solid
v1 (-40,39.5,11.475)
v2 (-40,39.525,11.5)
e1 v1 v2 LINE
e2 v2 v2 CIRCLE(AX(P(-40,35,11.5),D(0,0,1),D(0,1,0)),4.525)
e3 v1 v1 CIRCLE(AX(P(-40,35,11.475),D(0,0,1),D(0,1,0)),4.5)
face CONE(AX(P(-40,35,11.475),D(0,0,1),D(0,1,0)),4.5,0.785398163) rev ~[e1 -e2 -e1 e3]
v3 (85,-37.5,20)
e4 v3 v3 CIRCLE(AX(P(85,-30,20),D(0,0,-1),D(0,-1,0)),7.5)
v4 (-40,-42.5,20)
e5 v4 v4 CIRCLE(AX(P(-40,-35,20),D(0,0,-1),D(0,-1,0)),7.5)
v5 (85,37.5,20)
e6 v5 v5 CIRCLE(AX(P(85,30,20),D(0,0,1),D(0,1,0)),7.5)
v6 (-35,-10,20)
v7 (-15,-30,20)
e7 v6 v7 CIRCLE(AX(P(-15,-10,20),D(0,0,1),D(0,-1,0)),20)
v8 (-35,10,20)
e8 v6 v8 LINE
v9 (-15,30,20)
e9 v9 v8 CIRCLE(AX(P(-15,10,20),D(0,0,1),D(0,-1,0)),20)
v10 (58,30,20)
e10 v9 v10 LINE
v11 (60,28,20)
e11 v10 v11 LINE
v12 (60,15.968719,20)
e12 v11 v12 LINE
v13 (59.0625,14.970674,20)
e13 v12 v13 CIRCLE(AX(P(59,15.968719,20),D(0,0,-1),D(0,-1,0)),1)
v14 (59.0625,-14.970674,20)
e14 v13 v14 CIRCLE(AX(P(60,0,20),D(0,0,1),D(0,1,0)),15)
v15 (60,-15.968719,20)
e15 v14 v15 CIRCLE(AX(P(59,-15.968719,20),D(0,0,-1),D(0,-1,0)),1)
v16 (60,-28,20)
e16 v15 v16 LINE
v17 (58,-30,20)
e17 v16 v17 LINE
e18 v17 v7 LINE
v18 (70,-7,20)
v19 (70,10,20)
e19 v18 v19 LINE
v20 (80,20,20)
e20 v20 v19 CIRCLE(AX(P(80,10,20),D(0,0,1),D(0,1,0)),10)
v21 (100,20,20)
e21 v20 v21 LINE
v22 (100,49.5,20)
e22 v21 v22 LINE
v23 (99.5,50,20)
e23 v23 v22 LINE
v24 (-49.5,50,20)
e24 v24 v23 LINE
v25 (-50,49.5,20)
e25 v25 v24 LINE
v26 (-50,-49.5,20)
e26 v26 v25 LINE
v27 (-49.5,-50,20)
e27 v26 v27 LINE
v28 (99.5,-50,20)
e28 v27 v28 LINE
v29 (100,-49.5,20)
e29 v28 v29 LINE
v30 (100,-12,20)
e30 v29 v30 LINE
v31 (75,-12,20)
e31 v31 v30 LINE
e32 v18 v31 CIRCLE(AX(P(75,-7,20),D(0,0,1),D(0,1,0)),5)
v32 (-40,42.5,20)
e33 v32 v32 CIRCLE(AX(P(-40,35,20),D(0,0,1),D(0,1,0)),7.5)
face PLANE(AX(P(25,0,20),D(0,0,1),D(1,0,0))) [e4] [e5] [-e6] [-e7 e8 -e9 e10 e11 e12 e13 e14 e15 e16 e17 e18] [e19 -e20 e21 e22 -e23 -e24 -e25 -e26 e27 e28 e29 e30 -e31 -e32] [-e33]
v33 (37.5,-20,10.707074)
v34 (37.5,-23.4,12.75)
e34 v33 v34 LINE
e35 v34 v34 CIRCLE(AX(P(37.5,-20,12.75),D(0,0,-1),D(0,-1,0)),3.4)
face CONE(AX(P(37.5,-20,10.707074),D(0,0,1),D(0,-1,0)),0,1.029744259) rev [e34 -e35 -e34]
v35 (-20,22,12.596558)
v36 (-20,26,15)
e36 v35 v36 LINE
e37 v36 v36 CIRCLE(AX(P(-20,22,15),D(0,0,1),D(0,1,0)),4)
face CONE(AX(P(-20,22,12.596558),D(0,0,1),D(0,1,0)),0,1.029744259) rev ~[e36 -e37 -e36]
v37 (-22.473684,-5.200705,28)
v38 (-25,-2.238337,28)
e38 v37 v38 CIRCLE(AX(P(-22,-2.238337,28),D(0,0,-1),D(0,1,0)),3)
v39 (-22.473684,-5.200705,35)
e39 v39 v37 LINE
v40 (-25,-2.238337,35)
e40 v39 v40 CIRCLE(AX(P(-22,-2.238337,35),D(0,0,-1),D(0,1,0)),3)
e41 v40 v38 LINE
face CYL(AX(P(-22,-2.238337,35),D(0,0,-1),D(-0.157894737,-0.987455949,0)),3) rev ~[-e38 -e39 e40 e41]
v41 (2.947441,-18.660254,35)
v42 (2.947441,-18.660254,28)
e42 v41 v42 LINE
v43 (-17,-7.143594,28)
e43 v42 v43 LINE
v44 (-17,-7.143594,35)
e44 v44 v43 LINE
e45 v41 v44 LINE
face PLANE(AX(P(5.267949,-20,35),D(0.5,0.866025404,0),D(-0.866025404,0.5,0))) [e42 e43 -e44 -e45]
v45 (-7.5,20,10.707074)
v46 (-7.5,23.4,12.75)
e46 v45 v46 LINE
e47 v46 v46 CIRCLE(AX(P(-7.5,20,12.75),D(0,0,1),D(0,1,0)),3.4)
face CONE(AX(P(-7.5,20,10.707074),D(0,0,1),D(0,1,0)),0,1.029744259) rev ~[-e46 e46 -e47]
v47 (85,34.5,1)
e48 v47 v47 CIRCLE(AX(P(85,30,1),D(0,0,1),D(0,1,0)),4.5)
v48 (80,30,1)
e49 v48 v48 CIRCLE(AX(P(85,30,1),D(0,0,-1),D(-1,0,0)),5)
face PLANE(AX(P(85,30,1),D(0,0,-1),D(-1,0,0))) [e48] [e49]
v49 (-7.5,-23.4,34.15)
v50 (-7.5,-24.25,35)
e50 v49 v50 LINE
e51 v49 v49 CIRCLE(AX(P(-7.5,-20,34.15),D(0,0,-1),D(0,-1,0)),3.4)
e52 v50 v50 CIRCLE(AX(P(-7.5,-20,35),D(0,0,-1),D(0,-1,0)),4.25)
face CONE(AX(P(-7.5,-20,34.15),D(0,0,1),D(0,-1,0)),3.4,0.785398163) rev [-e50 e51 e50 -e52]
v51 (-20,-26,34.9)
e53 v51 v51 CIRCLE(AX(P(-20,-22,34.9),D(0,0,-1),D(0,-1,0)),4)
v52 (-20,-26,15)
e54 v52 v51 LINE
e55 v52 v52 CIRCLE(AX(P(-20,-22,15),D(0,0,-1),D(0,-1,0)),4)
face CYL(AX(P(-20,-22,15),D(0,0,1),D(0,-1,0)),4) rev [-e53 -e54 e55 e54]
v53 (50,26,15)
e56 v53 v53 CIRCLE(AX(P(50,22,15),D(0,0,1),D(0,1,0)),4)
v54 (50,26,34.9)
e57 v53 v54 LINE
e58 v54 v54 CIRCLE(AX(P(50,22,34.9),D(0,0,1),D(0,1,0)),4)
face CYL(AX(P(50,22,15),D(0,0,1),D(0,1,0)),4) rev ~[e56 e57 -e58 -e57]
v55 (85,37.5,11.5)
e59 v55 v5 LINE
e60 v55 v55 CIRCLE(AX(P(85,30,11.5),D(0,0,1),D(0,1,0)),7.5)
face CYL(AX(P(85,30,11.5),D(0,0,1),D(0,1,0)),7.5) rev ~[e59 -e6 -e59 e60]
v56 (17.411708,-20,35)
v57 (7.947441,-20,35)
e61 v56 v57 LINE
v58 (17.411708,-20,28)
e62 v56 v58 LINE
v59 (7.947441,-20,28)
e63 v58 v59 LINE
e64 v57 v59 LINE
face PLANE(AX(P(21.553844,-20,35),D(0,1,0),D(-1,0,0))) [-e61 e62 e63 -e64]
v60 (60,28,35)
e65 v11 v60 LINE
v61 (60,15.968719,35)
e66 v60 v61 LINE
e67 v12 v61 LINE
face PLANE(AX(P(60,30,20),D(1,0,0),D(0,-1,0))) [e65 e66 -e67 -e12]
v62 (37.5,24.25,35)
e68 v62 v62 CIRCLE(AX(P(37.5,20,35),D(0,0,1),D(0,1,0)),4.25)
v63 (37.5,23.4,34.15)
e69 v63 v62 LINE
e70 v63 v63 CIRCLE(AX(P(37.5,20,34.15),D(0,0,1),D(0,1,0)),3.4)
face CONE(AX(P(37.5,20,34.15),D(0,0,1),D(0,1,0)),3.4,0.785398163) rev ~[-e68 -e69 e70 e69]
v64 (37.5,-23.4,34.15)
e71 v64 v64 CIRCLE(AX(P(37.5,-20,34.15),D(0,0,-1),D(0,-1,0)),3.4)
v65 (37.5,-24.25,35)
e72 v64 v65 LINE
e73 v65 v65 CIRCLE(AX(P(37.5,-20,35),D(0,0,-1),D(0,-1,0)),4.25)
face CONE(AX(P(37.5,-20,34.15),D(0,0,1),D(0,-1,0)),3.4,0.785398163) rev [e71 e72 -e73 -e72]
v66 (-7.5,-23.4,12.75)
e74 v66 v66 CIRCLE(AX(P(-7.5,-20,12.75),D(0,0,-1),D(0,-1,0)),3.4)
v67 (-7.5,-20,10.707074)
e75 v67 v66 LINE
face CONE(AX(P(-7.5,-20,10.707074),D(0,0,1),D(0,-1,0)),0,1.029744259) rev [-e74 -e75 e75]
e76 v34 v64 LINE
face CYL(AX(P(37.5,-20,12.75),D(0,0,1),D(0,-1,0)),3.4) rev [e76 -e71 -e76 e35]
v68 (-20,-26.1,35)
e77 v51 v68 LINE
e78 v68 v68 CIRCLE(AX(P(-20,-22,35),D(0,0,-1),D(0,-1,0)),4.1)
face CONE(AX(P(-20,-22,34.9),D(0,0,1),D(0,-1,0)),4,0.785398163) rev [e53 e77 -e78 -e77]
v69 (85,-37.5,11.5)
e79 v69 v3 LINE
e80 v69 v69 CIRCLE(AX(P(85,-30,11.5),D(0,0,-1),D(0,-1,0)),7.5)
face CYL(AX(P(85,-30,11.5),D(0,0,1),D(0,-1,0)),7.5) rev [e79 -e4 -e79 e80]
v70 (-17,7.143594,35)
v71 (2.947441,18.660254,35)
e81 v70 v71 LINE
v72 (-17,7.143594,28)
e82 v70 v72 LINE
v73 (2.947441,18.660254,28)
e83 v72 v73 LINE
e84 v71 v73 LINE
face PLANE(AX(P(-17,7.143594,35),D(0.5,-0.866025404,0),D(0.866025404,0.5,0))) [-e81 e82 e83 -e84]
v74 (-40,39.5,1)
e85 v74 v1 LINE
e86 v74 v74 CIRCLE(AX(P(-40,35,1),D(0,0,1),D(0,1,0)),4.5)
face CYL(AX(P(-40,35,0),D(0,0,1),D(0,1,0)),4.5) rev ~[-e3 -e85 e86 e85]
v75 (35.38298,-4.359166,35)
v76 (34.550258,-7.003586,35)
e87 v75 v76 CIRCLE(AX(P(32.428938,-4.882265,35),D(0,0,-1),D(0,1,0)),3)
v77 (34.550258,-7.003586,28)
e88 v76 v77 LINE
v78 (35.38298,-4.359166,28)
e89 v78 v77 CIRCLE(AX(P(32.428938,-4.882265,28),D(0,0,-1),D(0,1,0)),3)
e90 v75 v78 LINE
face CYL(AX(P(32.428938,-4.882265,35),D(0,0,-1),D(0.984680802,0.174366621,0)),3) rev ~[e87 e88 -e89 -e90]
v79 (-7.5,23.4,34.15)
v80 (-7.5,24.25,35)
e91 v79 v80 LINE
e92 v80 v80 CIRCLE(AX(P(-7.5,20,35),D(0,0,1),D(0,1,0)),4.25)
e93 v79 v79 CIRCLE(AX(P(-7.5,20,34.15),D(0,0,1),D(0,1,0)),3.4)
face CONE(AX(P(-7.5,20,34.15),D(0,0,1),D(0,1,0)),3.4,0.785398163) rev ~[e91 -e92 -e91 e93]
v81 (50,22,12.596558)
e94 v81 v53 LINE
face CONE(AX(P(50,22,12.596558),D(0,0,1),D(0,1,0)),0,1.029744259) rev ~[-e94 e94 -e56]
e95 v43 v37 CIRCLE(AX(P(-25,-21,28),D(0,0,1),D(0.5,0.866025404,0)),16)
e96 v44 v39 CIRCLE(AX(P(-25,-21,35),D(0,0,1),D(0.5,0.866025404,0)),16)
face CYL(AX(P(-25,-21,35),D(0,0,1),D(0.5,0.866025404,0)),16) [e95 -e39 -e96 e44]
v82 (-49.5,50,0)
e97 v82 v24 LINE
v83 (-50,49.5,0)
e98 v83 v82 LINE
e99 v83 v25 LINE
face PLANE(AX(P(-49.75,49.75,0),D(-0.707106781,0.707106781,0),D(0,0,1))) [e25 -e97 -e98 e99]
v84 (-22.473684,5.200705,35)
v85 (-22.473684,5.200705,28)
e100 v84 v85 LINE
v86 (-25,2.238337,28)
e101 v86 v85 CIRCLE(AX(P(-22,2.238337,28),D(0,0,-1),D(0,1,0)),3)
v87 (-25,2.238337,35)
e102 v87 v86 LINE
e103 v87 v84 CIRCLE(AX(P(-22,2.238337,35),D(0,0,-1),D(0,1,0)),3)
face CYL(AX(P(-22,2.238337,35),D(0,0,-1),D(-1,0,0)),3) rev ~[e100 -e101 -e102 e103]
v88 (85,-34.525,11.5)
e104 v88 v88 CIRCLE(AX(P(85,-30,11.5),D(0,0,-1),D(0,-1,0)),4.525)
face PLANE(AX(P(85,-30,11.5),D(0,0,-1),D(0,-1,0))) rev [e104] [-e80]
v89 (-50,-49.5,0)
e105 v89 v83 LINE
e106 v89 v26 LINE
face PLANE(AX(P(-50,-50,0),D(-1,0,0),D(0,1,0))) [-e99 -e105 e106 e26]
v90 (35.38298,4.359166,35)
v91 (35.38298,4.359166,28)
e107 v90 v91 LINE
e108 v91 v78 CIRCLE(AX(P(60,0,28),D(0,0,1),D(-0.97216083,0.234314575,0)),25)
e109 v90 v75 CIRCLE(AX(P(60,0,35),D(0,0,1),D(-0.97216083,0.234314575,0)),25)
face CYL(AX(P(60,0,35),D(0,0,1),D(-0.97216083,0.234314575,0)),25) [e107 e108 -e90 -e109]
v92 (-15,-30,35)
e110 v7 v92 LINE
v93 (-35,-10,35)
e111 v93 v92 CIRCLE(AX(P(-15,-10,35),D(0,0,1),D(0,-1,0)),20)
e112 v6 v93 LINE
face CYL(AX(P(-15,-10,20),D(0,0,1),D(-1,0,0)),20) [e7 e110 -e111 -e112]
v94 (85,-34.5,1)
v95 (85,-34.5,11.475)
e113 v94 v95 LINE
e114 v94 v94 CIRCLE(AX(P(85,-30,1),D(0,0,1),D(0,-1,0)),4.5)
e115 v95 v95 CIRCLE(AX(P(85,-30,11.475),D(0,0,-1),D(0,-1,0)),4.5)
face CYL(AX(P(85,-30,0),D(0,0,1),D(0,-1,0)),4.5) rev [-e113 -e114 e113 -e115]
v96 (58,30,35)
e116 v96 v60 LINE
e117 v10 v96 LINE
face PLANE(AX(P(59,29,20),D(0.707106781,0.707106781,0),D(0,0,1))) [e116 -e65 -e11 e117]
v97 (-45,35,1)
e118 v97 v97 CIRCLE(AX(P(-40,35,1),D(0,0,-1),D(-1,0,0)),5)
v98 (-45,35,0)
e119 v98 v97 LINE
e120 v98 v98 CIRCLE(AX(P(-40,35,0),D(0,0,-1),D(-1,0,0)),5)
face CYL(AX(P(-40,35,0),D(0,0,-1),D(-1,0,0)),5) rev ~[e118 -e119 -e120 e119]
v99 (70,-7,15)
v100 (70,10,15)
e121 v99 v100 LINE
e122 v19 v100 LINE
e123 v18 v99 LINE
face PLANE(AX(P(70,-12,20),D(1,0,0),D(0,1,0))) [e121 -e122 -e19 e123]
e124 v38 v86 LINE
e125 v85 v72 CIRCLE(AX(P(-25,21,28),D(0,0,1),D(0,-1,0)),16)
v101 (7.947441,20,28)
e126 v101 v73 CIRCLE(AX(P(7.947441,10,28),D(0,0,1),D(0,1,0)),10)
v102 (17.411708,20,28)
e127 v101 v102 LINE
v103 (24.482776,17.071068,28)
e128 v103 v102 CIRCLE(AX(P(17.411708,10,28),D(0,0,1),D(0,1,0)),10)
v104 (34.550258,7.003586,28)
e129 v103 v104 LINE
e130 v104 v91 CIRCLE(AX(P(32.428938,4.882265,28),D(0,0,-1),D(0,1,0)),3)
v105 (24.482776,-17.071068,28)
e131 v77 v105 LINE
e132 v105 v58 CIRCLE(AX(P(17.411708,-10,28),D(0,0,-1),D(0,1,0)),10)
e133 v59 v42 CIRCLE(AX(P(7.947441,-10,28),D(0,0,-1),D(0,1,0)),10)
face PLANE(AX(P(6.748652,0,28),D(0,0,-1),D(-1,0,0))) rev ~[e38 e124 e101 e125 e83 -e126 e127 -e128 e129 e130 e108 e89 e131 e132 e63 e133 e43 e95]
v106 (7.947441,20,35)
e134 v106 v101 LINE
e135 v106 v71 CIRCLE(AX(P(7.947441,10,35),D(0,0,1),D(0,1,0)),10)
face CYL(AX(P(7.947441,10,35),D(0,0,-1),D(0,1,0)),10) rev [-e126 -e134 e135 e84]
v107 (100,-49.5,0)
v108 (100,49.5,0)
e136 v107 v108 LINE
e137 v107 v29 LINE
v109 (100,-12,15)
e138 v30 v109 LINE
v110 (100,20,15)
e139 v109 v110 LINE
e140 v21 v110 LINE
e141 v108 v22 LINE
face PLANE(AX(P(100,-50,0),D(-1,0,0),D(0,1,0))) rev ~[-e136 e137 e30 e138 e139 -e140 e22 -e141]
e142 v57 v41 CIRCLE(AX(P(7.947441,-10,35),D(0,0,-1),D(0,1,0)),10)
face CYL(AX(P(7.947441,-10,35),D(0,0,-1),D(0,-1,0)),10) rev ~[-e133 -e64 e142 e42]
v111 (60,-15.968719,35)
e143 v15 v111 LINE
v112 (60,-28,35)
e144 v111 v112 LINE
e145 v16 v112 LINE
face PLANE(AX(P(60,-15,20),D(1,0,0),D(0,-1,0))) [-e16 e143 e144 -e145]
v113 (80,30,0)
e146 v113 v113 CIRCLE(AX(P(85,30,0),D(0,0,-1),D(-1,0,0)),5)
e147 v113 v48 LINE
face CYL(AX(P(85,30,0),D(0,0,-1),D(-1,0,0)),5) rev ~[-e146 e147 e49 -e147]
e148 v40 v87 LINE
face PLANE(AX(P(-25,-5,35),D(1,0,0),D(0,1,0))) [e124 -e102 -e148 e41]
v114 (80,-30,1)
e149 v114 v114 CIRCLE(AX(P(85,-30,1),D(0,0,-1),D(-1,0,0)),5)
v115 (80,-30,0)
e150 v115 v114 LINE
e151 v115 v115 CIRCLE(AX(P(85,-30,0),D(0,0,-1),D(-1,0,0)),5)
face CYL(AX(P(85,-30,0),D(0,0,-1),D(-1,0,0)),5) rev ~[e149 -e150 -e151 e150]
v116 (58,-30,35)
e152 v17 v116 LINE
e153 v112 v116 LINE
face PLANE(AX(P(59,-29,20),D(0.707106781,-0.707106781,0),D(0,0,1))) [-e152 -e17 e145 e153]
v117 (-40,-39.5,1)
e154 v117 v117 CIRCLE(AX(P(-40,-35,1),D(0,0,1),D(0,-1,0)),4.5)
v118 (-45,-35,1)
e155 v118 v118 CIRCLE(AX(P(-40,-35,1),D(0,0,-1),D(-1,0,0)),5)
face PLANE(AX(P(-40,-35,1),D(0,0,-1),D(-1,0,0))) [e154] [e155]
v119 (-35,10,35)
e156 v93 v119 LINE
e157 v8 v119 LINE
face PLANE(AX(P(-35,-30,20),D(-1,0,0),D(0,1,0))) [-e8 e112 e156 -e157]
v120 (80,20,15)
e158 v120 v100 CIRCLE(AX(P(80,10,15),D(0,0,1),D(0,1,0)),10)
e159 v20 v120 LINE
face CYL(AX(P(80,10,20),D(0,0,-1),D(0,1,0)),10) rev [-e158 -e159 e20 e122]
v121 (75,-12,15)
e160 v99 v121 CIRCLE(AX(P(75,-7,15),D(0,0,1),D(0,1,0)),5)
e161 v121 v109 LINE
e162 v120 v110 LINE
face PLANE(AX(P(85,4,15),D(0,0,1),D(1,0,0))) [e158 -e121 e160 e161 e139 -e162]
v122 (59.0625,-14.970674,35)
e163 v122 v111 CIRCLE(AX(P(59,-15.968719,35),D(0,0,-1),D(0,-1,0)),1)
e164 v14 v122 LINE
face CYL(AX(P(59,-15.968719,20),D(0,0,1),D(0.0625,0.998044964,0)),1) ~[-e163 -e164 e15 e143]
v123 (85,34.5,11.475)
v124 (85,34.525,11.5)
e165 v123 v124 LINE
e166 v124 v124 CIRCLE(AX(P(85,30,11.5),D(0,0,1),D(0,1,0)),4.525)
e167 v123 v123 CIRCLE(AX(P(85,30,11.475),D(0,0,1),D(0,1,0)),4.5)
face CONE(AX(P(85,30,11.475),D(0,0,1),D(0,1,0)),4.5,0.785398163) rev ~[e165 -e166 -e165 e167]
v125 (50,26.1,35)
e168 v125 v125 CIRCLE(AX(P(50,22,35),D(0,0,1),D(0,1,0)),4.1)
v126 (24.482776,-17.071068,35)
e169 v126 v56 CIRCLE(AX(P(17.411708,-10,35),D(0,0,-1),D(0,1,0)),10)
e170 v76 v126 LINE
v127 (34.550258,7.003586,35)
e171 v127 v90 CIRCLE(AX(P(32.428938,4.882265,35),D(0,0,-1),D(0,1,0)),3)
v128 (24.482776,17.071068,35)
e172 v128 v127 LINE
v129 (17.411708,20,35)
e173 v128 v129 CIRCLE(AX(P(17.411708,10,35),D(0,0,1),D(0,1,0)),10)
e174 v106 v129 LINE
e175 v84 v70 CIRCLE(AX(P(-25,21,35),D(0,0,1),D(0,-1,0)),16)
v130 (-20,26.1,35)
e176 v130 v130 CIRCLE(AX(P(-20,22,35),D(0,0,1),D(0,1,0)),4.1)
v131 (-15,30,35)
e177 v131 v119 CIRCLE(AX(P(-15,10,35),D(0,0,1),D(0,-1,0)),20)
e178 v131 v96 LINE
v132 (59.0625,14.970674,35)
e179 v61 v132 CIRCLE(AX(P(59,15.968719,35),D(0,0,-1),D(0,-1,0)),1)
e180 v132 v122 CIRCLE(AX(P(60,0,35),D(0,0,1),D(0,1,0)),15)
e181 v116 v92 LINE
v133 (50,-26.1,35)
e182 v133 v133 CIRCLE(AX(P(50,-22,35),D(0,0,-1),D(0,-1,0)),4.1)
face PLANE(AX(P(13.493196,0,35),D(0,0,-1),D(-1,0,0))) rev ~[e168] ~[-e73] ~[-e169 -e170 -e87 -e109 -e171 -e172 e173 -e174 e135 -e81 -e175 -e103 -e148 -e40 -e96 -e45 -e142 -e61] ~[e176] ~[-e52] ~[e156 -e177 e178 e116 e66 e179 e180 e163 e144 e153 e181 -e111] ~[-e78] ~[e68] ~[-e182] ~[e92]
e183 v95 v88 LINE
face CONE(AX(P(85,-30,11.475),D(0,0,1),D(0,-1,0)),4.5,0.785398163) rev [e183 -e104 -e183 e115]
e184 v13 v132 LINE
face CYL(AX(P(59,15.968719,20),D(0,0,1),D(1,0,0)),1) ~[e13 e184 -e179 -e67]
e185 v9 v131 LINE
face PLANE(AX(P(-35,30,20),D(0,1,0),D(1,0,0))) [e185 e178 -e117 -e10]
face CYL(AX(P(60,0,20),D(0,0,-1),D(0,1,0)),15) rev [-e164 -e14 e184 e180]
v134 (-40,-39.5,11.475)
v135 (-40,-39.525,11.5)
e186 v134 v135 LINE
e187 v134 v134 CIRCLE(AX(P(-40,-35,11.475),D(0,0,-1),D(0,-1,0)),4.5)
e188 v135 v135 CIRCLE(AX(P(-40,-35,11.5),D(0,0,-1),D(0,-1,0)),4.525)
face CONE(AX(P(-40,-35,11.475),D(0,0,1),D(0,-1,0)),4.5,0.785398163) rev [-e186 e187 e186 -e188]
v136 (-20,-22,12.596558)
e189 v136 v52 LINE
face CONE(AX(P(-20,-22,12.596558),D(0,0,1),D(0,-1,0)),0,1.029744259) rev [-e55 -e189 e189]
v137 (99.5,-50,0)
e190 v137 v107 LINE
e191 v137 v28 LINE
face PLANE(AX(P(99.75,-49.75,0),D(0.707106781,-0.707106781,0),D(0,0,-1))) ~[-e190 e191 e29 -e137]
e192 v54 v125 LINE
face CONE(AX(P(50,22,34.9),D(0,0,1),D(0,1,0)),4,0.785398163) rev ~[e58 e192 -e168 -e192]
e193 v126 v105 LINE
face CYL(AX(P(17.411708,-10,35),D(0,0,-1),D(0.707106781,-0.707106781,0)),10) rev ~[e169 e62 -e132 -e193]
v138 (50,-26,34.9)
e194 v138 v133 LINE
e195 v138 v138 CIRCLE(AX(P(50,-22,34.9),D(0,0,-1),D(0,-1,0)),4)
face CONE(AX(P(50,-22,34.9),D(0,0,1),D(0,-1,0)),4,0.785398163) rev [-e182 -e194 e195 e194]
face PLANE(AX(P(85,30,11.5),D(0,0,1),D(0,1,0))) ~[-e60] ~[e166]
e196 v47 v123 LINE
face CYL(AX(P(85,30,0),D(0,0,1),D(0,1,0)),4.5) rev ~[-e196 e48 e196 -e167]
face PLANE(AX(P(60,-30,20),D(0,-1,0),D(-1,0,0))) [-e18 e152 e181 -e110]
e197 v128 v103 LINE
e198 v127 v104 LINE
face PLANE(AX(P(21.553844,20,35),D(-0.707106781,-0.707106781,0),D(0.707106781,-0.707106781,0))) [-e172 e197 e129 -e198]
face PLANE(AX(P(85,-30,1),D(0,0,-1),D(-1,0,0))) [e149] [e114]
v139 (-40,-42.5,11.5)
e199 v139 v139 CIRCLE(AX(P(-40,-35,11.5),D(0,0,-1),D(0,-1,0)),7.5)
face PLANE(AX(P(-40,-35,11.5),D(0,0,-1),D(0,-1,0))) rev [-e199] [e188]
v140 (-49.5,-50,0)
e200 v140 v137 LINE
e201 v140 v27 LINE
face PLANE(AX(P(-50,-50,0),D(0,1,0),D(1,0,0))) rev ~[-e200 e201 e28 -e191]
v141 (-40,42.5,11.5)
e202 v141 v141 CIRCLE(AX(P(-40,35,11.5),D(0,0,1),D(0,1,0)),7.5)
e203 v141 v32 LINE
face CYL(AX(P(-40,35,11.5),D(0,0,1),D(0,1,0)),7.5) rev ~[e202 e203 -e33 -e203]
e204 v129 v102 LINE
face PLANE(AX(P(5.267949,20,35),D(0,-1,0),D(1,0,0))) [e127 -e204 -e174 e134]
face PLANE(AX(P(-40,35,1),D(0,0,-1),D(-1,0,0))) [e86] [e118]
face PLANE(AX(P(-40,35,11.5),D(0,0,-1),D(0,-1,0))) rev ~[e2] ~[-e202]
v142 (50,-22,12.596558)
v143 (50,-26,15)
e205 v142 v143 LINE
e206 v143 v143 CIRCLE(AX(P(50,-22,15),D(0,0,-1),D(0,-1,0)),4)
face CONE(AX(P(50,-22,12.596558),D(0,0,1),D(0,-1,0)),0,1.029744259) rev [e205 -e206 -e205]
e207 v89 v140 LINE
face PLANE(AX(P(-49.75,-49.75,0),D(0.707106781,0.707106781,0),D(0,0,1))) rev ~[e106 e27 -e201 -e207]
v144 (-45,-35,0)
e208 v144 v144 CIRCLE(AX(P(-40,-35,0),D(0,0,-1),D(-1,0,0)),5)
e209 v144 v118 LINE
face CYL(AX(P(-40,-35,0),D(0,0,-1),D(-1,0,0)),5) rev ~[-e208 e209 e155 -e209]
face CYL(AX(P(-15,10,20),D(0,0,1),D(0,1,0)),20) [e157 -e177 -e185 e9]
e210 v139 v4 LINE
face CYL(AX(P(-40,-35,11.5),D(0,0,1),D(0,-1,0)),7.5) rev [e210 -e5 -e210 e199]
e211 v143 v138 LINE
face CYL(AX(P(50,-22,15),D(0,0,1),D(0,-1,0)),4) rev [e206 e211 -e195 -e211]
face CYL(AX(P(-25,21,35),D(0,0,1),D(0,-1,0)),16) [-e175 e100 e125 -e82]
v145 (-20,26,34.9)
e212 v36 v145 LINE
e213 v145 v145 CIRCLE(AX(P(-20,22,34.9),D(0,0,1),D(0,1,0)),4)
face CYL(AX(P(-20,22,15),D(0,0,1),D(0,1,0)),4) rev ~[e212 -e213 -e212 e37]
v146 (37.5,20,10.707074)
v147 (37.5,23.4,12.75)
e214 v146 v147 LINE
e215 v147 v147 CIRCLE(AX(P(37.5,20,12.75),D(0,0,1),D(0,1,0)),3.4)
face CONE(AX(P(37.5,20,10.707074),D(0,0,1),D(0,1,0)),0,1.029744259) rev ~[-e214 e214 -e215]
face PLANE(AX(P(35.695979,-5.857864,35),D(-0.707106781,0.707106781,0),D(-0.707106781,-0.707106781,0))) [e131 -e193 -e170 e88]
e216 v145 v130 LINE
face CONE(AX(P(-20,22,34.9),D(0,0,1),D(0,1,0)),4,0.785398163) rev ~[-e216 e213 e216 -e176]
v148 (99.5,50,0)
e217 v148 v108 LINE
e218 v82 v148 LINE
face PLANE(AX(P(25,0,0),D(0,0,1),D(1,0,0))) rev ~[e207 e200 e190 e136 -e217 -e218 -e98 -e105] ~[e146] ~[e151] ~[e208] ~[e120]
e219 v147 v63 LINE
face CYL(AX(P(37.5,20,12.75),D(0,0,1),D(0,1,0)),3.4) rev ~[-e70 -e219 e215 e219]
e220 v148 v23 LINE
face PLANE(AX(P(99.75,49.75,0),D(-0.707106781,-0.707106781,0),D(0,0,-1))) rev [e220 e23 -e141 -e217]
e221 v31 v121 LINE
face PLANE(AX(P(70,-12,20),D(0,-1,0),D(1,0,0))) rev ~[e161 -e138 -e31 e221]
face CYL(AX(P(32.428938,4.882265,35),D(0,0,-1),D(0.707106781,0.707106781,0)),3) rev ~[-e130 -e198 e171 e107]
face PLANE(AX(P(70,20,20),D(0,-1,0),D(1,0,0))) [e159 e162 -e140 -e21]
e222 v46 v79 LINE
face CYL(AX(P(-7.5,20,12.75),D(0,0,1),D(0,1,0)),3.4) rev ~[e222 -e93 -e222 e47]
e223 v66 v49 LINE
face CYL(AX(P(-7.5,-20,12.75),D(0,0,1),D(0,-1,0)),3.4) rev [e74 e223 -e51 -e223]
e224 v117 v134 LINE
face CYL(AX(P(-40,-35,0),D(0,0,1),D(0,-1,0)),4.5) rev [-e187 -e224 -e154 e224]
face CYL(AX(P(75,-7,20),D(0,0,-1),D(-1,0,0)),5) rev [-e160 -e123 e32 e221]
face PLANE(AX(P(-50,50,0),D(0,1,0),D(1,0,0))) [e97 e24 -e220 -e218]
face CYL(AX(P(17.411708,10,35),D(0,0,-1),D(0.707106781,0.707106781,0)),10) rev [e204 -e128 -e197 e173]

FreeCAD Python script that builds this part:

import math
import FreeCAD as App
import Part
import Sketcher
from FreeCAD import Vector
Q = App.Units.Quantity


def edges_at(feature, points):
    """Names of the edges that pass closest to the given points."""
    edges = feature.Shape.Edges
    near = lambda p: min(range(len(edges)), key=lambda i: edges[i].distToShape(Part.Vertex(*p))[0])
    return sorted({f"Edge{near(p) + 1}" for p in points})

doc = App.newDocument("Part")
body = doc.addObject("PartDesign::Body", "Body")

# Sketch on XY plane
sketch1 = body.newObject("Sketcher::SketchObject", "Sketch")
sketch1.AttachmentSupport = (doc.getObject("XY_Plane"), [""])
sketch1.MapMode = "FlatFace"
sketch1.addGeometry([
    Part.LineSegment(Vector(-50, 50, 0), Vector(-50, -50, 0)),
    Part.LineSegment(Vector(-50, -50, 0), Vector(100, -50, 0)),
    Part.LineSegment(Vector(100, -50, 0), Vector(100, 50, 0)),
    Part.LineSegment(Vector(100, 50, 0), Vector(-50, 50, 0)),
], False)
sketch1.addConstraint([
    Sketcher.Constraint("Coincident", 0, 2, 1, 1),
    Sketcher.Constraint("Coincident", 1, 2, 2, 1),
    Sketcher.Constraint("Coincident", 2, 2, 3, 1),
    Sketcher.Constraint("Coincident", 3, 2, 0, 1),
    Sketcher.Constraint("Vertical", 0),
    Sketcher.Constraint("Horizontal", 1),
    Sketcher.Constraint("Vertical", 2),
    Sketcher.Constraint("Horizontal", 3),
    Sketcher.Constraint("DistanceX", 1, 1, 1, 2, 150.0),
    Sketcher.Constraint("DistanceY", 0, 2, 0, 1, 100.0),
    Sketcher.Constraint("DistanceX", 0, 2, -1, 1, 50.0),
    Sketcher.Constraint("DistanceY", 0, 2, -1, 1, 50.0),
])
pad1 = body.newObject("PartDesign::Pad", "Pad")
pad1.Profile = sketch1
pad1.Length = 20

# Sketch on XY plane
sketch2 = body.newObject("Sketcher::SketchObject", "Sketch001")
sketch2.AttachmentSupport = (doc.getObject("XY_Plane"), [""])
sketch2.MapMode = "FlatFace"
sketch2.AttachmentOffset = App.Placement(Vector(0, 0, 20), App.Rotation())
sketch2.addGeometry([
    Part.LineSegment(Vector(60, -30, 0), Vector(60, -15, 0)),  # 0
    Part.ArcOfCircle(Part.Circle(Vector(60, 0, 0), Vector(0, 0, 1), 15), math.radians(90), math.radians(270)),  # 1
    Part.LineSegment(Vector(60, 15, 0), Vector(60, 30, 0)),  # 2
    Part.LineSegment(Vector(60, 30, 0), Vector(-35, 30, 0)),  # 3
    Part.LineSegment(Vector(-35, 30, 0), Vector(-35, -30, 0)),  # 4
    Part.LineSegment(Vector(-35, -30, 0), Vector(60, -30, 0)),  # 5
], False)
sketch2.addConstraint([
    Sketcher.Constraint("Coincident", 0, 2, 1, 2),
    Sketcher.Constraint("Coincident", 1, 1, 2, 1),
    Sketcher.Constraint("Coincident", 2, 2, 3, 1),
    Sketcher.Constraint("Coincident", 3, 2, 4, 1),
    Sketcher.Constraint("Coincident", 4, 2, 5, 1),
    Sketcher.Constraint("Coincident", 5, 2, 0, 1),
    Sketcher.Constraint("Vertical", 0),
    Sketcher.Constraint("Vertical", 2),
    Sketcher.Constraint("Horizontal", 3),
    Sketcher.Constraint("Vertical", 4),
    Sketcher.Constraint("Horizontal", 5),
    Sketcher.Constraint("Symmetric", 0, 2, 1, 1, -1),
    Sketcher.Constraint("Vertical", 1, 3, 0, 2),
    Sketcher.Constraint("Equal", 0, 2),
    Sketcher.Constraint("Radius", 1, 15.0),
    Sketcher.Constraint("DistanceX", 3, 2, 3, 1, 95.0),
    Sketcher.Constraint("DistanceY", 0, 1, 0, 2, 15.0),
    Sketcher.Constraint("DistanceX", -1, 1, 1, 3, 60.0),
])
pad2 = body.newObject("PartDesign::Pad", "Pad001")
pad2.Profile = sketch2
pad2.Length = 15
doc.recompute()

fillet = body.newObject("PartDesign::Fillet", "Fillet")
fillet.Base = (pad2, edges_at(pad2, [(-35, 30, 27.5), (-35, -30, 27.5)]))
fillet.Radius = 20

# Sketch on YZ plane
sketch3 = body.newObject("Sketcher::SketchObject", "Sketch002")
sketch3.AttachmentSupport = (doc.getObject("YZ_Plane"), [""])
sketch3.MapMode = "FlatFace"
sketch3.AttachmentOffset = App.Placement(Vector(0, 0, -40), App.Rotation())
sketch3.addGeometry([
    Part.LineSegment(Vector(-35, 0, 0), Vector(-35, 20, 0)),  # 0
    Part.LineSegment(Vector(-35, 20, 0), Vector(-42.5, 20, 0)),  # 1
    Part.LineSegment(Vector(-42.5, 20, 0), Vector(-42.5, 11.5, 0)),  # 2
    Part.LineSegment(Vector(-42.5, 11.5, 0), Vector(-39.525, 11.5, 0)),  # 3
    Part.LineSegment(Vector(-39.525, 11.5, 0), Vector(-39.5, 11.475, 0)),  # 4
    Part.LineSegment(Vector(-39.5, 11.475, 0), Vector(-39.5, 0, 0)),  # 5
    Part.LineSegment(Vector(-39.5, 0, 0), Vector(-35, 0, 0)),  # 6
], False)
sketch3.addGeometry(Part.LineSegment(Vector(-35, 20, 0), Vector(-35, 0, 0)), True)  # axis
sketch3.addConstraint([
    Sketcher.Constraint("Coincident", 0, 2, 1, 1),
    Sketcher.Constraint("Coincident", 1, 2, 2, 1),
    Sketcher.Constraint("Coincident", 2, 2, 3, 1),
    Sketcher.Constraint("Coincident", 3, 2, 4, 1),
    Sketcher.Constraint("Coincident", 4, 2, 5, 1),
    Sketcher.Constraint("Coincident", 5, 2, 6, 1),
    Sketcher.Constraint("Coincident", 6, 2, 0, 1),
    Sketcher.Constraint("Vertical", 0),
    Sketcher.Constraint("Horizontal", 1),
    Sketcher.Constraint("Vertical", 2),
    Sketcher.Constraint("Horizontal", 3),
    Sketcher.Constraint("Vertical", 5),
    Sketcher.Constraint("Horizontal", 6),
    Sketcher.Constraint("Vertical", 7),
    Sketcher.Constraint("Coincident", 7, 1, 0, 2),
    Sketcher.Constraint("PointOnObject", 5, 2, -1),
    Sketcher.Constraint("PointOnObject", 7, 2, -1),
    Sketcher.Constraint("DistanceY", 0, 1, 0, 2, 20.0),
    Sketcher.Constraint("Angle", 4, Q("-45 deg")),
    Sketcher.Constraint("DistanceX", 1, 2, 1, 1, 7.5),
    Sketcher.Constraint("DistanceX", 6, 1, 6, 2, 4.5),
    Sketcher.Constraint("DistanceY", 2, 2, 2, 1, 8.5),
    Sketcher.Constraint("DistanceX", 0, 2, -1, 1, 35.0),
    Sketcher.Constraint("DistanceX", 3, 1, 3, 2, 2.975),
])
groove = body.newObject("PartDesign::Groove", "Groove")
groove.Profile = sketch3
groove.ReferenceAxis = (sketch3, ["Axis0"])
groove.Angle = 360
doc.recompute()

datumline = body.newObject("PartDesign::Line", "DatumLine")
datumline.Placement = App.Placement(Vector(0, 0, 0), App.Rotation(Vector(0, 0, 1), Vector(0.999200959, 0.039968038, 0)))
linearpattern = body.newObject("PartDesign::LinearPattern", "LinearPattern")
linearpattern.Originals = [groove]
linearpattern.Direction = (datumline, [""])
linearpattern.Mode = "offset"
linearpattern.Offset = 125.09996
linearpattern.Occurrences = 2
body.Tip = linearpattern

# Sketch on YZ plane
sketch4 = body.newObject("Sketcher::SketchObject", "Sketch003")
sketch4.AttachmentSupport = (doc.getObject("YZ_Plane"), [""])
sketch4.MapMode = "FlatFace"
sketch4.AttachmentOffset = App.Placement(Vector(0, 0, -7.5), App.Rotation())
sketch4.addGeometry([
    Part.LineSegment(Vector(-20, 10.707074, 0), Vector(-20, 35, 0)),  # 0
    Part.LineSegment(Vector(-20, 35, 0), Vector(-24.25, 35, 0)),  # 1
    Part.LineSegment(Vector(-24.25, 35, 0), Vector(-23.4, 34.15, 0)),  # 2
    Part.LineSegment(Vector(-23.4, 34.15, 0), Vector(-23.4, 12.75, 0)),  # 3
    Part.LineSegment(Vector(-23.4, 12.75, 0), Vector(-20, 10.707074, 0)),  # 4
], False)
sketch4.addGeometry(Part.LineSegment(Vector(-20, 35, 0), Vector(-20, 10.707074, 0)), True)  # axis
sketch4.addConstraint([
    Sketcher.Constraint("Coincident", 0, 2, 1, 1),
    Sketcher.Constraint("Coincident", 1, 2, 2, 1),
    Sketcher.Constraint("Coincident", 2, 2, 3, 1),
    Sketcher.Constraint("Coincident", 3, 2, 4, 1),
    Sketcher.Constraint("Coincident", 4, 2, 0, 1),
    Sketcher.Constraint("Vertical", 0),
    Sketcher.Constraint("Horizontal", 1),
    Sketcher.Constraint("Vertical", 3),
    Sketcher.Constraint("Vertical", 5),
    Sketcher.Constraint("Coincident", 5, 1, 0, 2),
    Sketcher.Constraint("Equal", 0, 5),
    Sketcher.Constraint("Angle", 2, Q("-45 deg")),
    Sketcher.Constraint("Angle", 4, Q("-31 deg")),
    Sketcher.Constraint("DistanceY", 3, 2, 3, 1, 21.4),
    Sketcher.Constraint("DistanceX", 0, 2, -1, 1, 20.0),
    Sketcher.Constraint("DistanceY", -1, 1, 0, 2, 35.0),
    Sketcher.Constraint("DistanceX", 1, 2, 1, 1, 4.25),
    Sketcher.Constraint("DistanceX", 2, 2, -1, 1, 23.4),
])
groove2 = body.newObject("PartDesign::Groove", "Groove001")
groove2.Profile = sketch4
groove2.ReferenceAxis = (sketch4, ["Axis0"])
groove2.Angle = 360
doc.recompute()

linearpattern2 = body.newObject("PartDesign::LinearPattern", "LinearPattern001")
linearpattern2.Originals = [groove2]
linearpattern2.Direction = (doc.getObject("X_Axis"), [""])
linearpattern2.Mode = "offset"
linearpattern2.Offset = 45
linearpattern2.Occurrences = 2
body.Tip = linearpattern2

# Sketch on YZ plane
sketch5 = body.newObject("Sketcher::SketchObject", "Sketch004")
sketch5.AttachmentSupport = (doc.getObject("YZ_Plane"), [""])
sketch5.MapMode = "FlatFace"
sketch5.AttachmentOffset = App.Placement(Vector(0, 0, -20), App.Rotation())
sketch5.addGeometry([
    Part.LineSegment(Vector(-22, 12.596558, 0), Vector(-22, 35, 0)),  # 0
    Part.LineSegment(Vector(-22, 35, 0), Vector(-26.1, 35, 0)),  # 1
    Part.LineSegment(Vector(-26.1, 35, 0), Vector(-26, 34.9, 0)),  # 2
    Part.LineSegment(Vector(-26, 34.9, 0), Vector(-26, 15, 0)),  # 3
    Part.LineSegment(Vector(-26, 15, 0), Vector(-22, 12.596558, 0)),  # 4
], False)
sketch5.addGeometry(Part.LineSegment(Vector(-22, 35, 0), Vector(-22, 12.596558, 0)), True)  # axis
sketch5.addConstraint([
    Sketcher.Constraint("Coincident", 0, 2, 1, 1),
    Sketcher.Constraint("Coincident", 1, 2, 2, 1),
    Sketcher.Constraint("Coincident", 2, 2, 3, 1),
    Sketcher.Constraint("Coincident", 3, 2, 4, 1),
    Sketcher.Constraint("Coincident", 4, 2, 0, 1),
    Sketcher.Constraint("Vertical", 0),
    Sketcher.Constraint("Horizontal", 1),
    Sketcher.Constraint("Vertical", 3),
    Sketcher.Constraint("Vertical", 5),
    Sketcher.Constraint("Coincident", 5, 1, 0, 2),
    Sketcher.Constraint("Equal", 0, 5),
    Sketcher.Constraint("Angle", 2, Q("-45 deg")),
    Sketcher.Constraint("Angle", 4, Q("-31 deg")),
    Sketcher.Constraint("DistanceX", 1, 2, 1, 1, 4.1),
    Sketcher.Constraint("DistanceY", 3, 2, 3, 1, 19.9),
    Sketcher.Constraint("DistanceX", 0, 2, -1, 1, 22.0),
    Sketcher.Constraint("DistanceY", -1, 1, 0, 2, 35.0),
    Sketcher.Constraint("DistanceX", 2, 2, -1, 1, 26.0),
])
groove3 = body.newObject("PartDesign::Groove", "Groove002")
groove3.Profile = sketch5
groove3.ReferenceAxis = (sketch5, ["Axis0"])
groove3.Angle = 360
doc.recompute()

linearpattern3 = body.newObject("PartDesign::LinearPattern", "LinearPattern002")
linearpattern3.Originals = [groove3]
linearpattern3.Direction = (doc.getObject("X_Axis"), [""])
linearpattern3.Mode = "offset"
linearpattern3.Offset = 70
linearpattern3.Occurrences = 2
body.Tip = linearpattern3
doc.recompute()

mirrored = body.newObject("PartDesign::Mirrored", "Mirrored")
mirrored.Originals = [groove, groove2, groove3]
mirrored.MirrorPlane = (doc.getObject("XZ_Plane"), [""])
body.Tip = mirrored

# Sketch on YZ plane
sketch6 = body.newObject("Sketcher::SketchObject", "Sketch005")
sketch6.AttachmentSupport = (doc.getObject("YZ_Plane"), [""])
sketch6.MapMode = "FlatFace"
sketch6.AttachmentOffset = App.Placement(Vector(0, 0, 85), App.Rotation())
sketch6.addGeometry([
    Part.LineSegment(Vector(30, 20, 0), Vector(30, 0, 0)),  # 0
    Part.LineSegment(Vector(30, 0, 0), Vector(34.5, 0, 0)),  # 1
    Part.LineSegment(Vector(34.5, 0, 0), Vector(34.5, 11.475, 0)),  # 2
    Part.LineSegment(Vector(34.5, 11.475, 0), Vector(34.525, 11.5, 0)),  # 3
    Part.LineSegment(Vector(34.525, 11.5, 0), Vector(37.5, 11.5, 0)),  # 4
    Part.LineSegment(Vector(37.5, 11.5, 0), Vector(37.5, 20, 0)),  # 5
    Part.LineSegment(Vector(37.5, 20, 0), Vector(30, 20, 0)),  # 6
], False)
sketch6.addGeometry(Part.LineSegment(Vector(30, 0, 0), Vector(30, 20, 0)), True)  # axis
sketch6.addConstraint([
    Sketcher.Constraint("Coincident", 0, 2, 1, 1),
    Sketcher.Constraint("Coincident", 1, 2, 2, 1),
    Sketcher.Constraint("Coincident", 2, 2, 3, 1),
    Sketcher.Constraint("Coincident", 3, 2, 4, 1),
    Sketcher.Constraint("Coincident", 4, 2, 5, 1),
    Sketcher.Constraint("Coincident", 5, 2, 6, 1),
    Sketcher.Constraint("Coincident", 6, 2, 0, 1),
    Sketcher.Constraint("Vertical", 0),
    Sketcher.Constraint("Horizontal", 1),
    Sketcher.Constraint("Vertical", 2),
    Sketcher.Constraint("Horizontal", 4),
    Sketcher.Constraint("Vertical", 5),
    Sketcher.Constraint("Horizontal", 6),
    Sketcher.Constraint("Vertical", 7),
    Sketcher.Constraint("Coincident", 7, 1, 0, 2),
    Sketcher.Constraint("PointOnObject", 0, 2, -1),
    Sketcher.Constraint("Horizontal", 5, 2, 7, 2),
    Sketcher.Constraint("DistanceY", 0, 2, 0, 1, 20.0),
    Sketcher.Constraint("Angle", 3, Q("45 deg")),
    Sketcher.Constraint("DistanceX", 1, 1, 1, 2, 4.5),
    Sketcher.Constraint("DistanceX", 6, 2, 6, 1, 7.5),
    Sketcher.Constraint("DistanceY", 5, 1, 5, 2, 8.5),
    Sketcher.Constraint("DistanceX", -1, 1, 0, 2, 30.0),
    Sketcher.Constraint("DistanceX", 4, 1, 4, 2, 2.975),
])
groove4 = body.newObject("PartDesign::Groove", "Groove003")
groove4.Profile = sketch6
groove4.ReferenceAxis = (sketch6, ["Axis0"])
groove4.Angle = 360

# Sketch on YZ plane
sketch7 = body.newObject("Sketcher::SketchObject", "Sketch006")
sketch7.AttachmentSupport = (doc.getObject("YZ_Plane"), [""])
sketch7.MapMode = "FlatFace"
sketch7.AttachmentOffset = App.Placement(Vector(0, 0, 37.5), App.Rotation())
sketch7.addGeometry([
    Part.LineSegment(Vector(20, 35, 0), Vector(20, 10.707074, 0)),  # 0
    Part.LineSegment(Vector(20, 10.707074, 0), Vector(23.4, 12.75, 0)),  # 1
    Part.LineSegment(Vector(23.4, 12.75, 0), Vector(23.4, 34.15, 0)),  # 2
    Part.LineSegment(Vector(23.4, 34.15, 0), Vector(24.25, 35, 0)),  # 3
    Part.LineSegment(Vector(24.25, 35, 0), Vector(20, 35, 0)),  # 4
], False)
sketch7.addGeometry(Part.LineSegment(Vector(20, 10.707074, 0), Vector(20, 35, 0)), True)  # axis
sketch7.addConstraint([
    Sketcher.Constraint("Coincident", 0, 2, 1, 1),
    Sketcher.Constraint("Coincident", 1, 2, 2, 1),
    Sketcher.Constraint("Coincident", 2, 2, 3, 1),
    Sketcher.Constraint("Coincident", 3, 2, 4, 1),
    Sketcher.Constraint("Coincident", 4, 2, 0, 1),
    Sketcher.Constraint("Vertical", 0),
    Sketcher.Constraint("Vertical", 2),
    Sketcher.Constraint("Horizontal", 4),
    Sketcher.Constraint("Vertical", 5),
    Sketcher.Constraint("Coincident", 5, 1, 0, 2),
    Sketcher.Constraint("Horizontal", 3, 2, 5, 2),
    Sketcher.Constraint("Angle", 1, Q("31 deg")),
    Sketcher.Constraint("Angle", 3, Q("45 deg")),
    Sketcher.Constraint("DistanceY", 2, 1, 2, 2, 21.4),
    Sketcher.Constraint("DistanceX", -1, 1, 0, 2, 20.0),
    Sketcher.Constraint("DistanceY", -1, 1, 3, 2, 35.0),
    Sketcher.Constraint("DistanceX", 4, 2, 4, 1, 4.25),
    Sketcher.Constraint("DistanceX", -1, 1, 1, 2, 23.4),
])
groove5 = body.newObject("PartDesign::Groove", "Groove004")
groove5.Profile = sketch7
groove5.ReferenceAxis = (sketch7, ["Axis0"])
groove5.Angle = 360

# Sketch on YZ plane
sketch8 = body.newObject("Sketcher::SketchObject", "Sketch007")
sketch8.AttachmentSupport = (doc.getObject("YZ_Plane"), [""])
sketch8.MapMode = "FlatFace"
sketch8.AttachmentOffset = App.Placement(Vector(0, 0, 50), App.Rotation())
sketch8.addGeometry([
    Part.LineSegment(Vector(22, 35, 0), Vector(22, 12.596558, 0)),  # 0
    Part.LineSegment(Vector(22, 12.596558, 0), Vector(26, 15, 0)),  # 1
    Part.LineSegment(Vector(26, 15, 0), Vector(26, 34.9, 0)),  # 2
    Part.LineSegment(Vector(26, 34.9, 0), Vector(26.1, 35, 0)),  # 3
    Part.LineSegment(Vector(26.1, 35, 0), Vector(22, 35, 0)),  # 4
], False)
sketch8.addGeometry(Part.LineSegment(Vector(22, 12.596558, 0), Vector(22, 35, 0)), True)  # axis
sketch8.addConstraint([
    Sketcher.Constraint("Coincident", 0, 2, 1, 1),
    Sketcher.Constraint("Coincident", 1, 2, 2, 1),
    Sketcher.Constraint("Coincident", 2, 2, 3, 1),
    Sketcher.Constraint("Coincident", 3, 2, 4, 1),
    Sketcher.Constraint("Coincident", 4, 2, 0, 1),
    Sketcher.Constraint("Vertical", 0),
    Sketcher.Constraint("Vertical", 2),
    Sketcher.Constraint("Horizontal", 4),
    Sketcher.Constraint("Vertical", 5),
    Sketcher.Constraint("Coincident", 5, 1, 0, 2),
    Sketcher.Constraint("Horizontal", 3, 2, 5, 2),
    Sketcher.Constraint("Angle", 1, Q("31 deg")),
    Sketcher.Constraint("Angle", 3, Q("45 deg")),
    Sketcher.Constraint("DistanceX", 4, 2, 4, 1, 4.1),
    Sketcher.Constraint("DistanceY", 2, 1, 2, 2, 19.9),
    Sketcher.Constraint("DistanceX", -1, 1, 0, 2, 22.0),
    Sketcher.Constraint("DistanceX", -1, 1, 1, 2, 26.0),
    Sketcher.Constraint("DistanceY", -1, 1, 1, 2, 15.0),
])
groove6 = body.newObject("PartDesign::Groove", "Groove005")
groove6.Profile = sketch8
groove6.ReferenceAxis = (sketch8, ["Axis0"])
groove6.Angle = 360

# Sketch on XY plane
sketch9 = body.newObject("Sketcher::SketchObject", "Sketch008")
sketch9.AttachmentSupport = (doc.getObject("XY_Plane"), [""])
sketch9.MapMode = "FlatFace"
sketch9.AttachmentOffset = App.Placement(Vector(0, 0, 35), App.Rotation())
sketch9.addGeometry([
    Part.LineSegment(Vector(35.695979, 5.857864, 0), Vector(21.553844, 20, 0)),  # 0
    Part.LineSegment(Vector(21.553844, 20, 0), Vector(5.267949, 20, 0)),  # 1
    Part.LineSegment(Vector(5.267949, 20, 0), Vector(-17, 7.143594, 0)),  # 2
    Part.ArcOfCircle(Part.Circle(Vector(-25, 21, 0), Vector(0, 0, 1), 16), math.radians(-90), math.radians(-60)),  # 3
    Part.LineSegment(Vector(-25, 5, 0), Vector(-25, -5, 0)),  # 4
    Part.ArcOfCircle(Part.Circle(Vector(-25, -21, 0), Vector(0, 0, 1), 16), math.radians(60), math.radians(90)),  # 5
    Part.LineSegment(Vector(-17, -7.143594, 0), Vector(5.267949, -20, 0)),  # 6
    Part.LineSegment(Vector(5.267949, -20, 0), Vector(21.553844, -20, 0)),  # 7
    Part.LineSegment(Vector(21.553844, -20, 0), Vector(35.695979, -5.857864, 0)),  # 8
    Part.ArcOfCircle(Part.Circle(Vector(60, 0, 0), Vector(0, 0, 1), 25), math.radians(166.448777), math.radians(193.551223)),  # 9
], False)
sketch9.addConstraint([
    Sketcher.Constraint("Coincident", 0, 2, 1, 1),
    Sketcher.Constraint("Coincident", 1, 2, 2, 1),
    Sketcher.Constraint("Tangent", 2, 2, 3, 2),
    Sketcher.Constraint("Coincident", 3, 1, 4, 1),
    Sketcher.Constraint("Coincident", 4, 2, 5, 2),
    Sketcher.Constraint("Tangent", 5, 1, 6, 1),
    Sketcher.Constraint("Coincident", 6, 2, 7, 1),
    Sketcher.Constraint("Coincident", 7, 2, 8, 1),
    Sketcher.Constraint("Coincident", 8, 2, 9, 2),
    Sketcher.Constraint("Coincident", 9, 1, 0, 1),
    Sketcher.Constraint("Horizontal", 1),
    Sketcher.Constraint("Vertical", 4),
    Sketcher.Constraint("Horizontal", 7),
    Sketcher.Constraint("Equal", 3, 5),
    Sketcher.Constraint("Symmetric", 3, 3, 5, 3, -1),
    Sketcher.Constraint("Symmetric", 1, 2, 6, 2, -1),
    Sketcher.Constraint("Symmetric", 8, 2, 9, 1, -1),
    Sketcher.Constraint("Perpendicular", 0, 8),
    Sketcher.Constraint("Vertical", 5, 3, 3, 1),
    Sketcher.Constraint("Vertical", 0, 2, 7, 2),
    Sketcher.Constraint("Radius", 3, 16.0),
    Sketcher.Constraint("Radius", 9, 25.0),
    Sketcher.Constraint("DistanceY", 4, 2, 4, 1, 10.0),
    Sketcher.Constraint("Angle", 2, Q("-150 deg")),
    Sketcher.Constraint("Distance", 0, 20.0),
    Sketcher.Constraint("DistanceX", 3, 3, -1, 1, 25.0),
    Sketcher.Constraint("DistanceX", -1, 1, 9, 3, 60.0),
    Sketcher.Constraint("DistanceY", -1, 1, 0, 2, 20.0),
])
pocket1 = body.newObject("PartDesign::Pocket", "Pocket")
pocket1.Profile = sketch9
pocket1.Length = 7
doc.recompute()

fillet2 = body.newObject("PartDesign::Fillet", "Fillet001")
fillet2.Base = (pocket1, edges_at(pocket1, [
    (-25, -5, 31.5),
    (-25, 5, 31.5),
    (35.696, 5.858, 31.5),
    (35.696, -5.858, 31.5),
]))
fillet2.Radius = 3
doc.recompute()

fillet3 = body.newObject("PartDesign::Fillet", "Fillet002")
fillet3.Base = (fillet2, edges_at(fillet2, [
    (5.268, 20, 31.5),
    (21.554, 20, 31.5),
    (21.554, -20, 31.5),
    (5.268, -20, 31.5),
]))
fillet3.Radius = 10
doc.recompute()

chamfer = body.newObject("PartDesign::Chamfer", "Chamfer")
chamfer.Base = (fillet3, edges_at(fillet3, [
    (-50, 50, 10),
    (100, 50, 10),
    (100, -50, 10),
    (-50, -50, 10),
]))
chamfer.Size = 0.5
doc.recompute()

chamfer2 = body.newObject("PartDesign::Chamfer", "Chamfer001")
chamfer2.Base = (chamfer, edges_at(chamfer, [(60, -30, 27.5), (60, 30, 27.5)]))
chamfer2.Size = 2
doc.recompute()

fillet4 = body.newObject("PartDesign::Fillet", "Fillet003")
fillet4.Base = (chamfer2, edges_at(chamfer2, [(60, -15, 27.5), (60, 15, 27.5)]))
fillet4.Radius = 1

# Sketch on XY plane
sketch10 = body.newObject("Sketcher::SketchObject", "Sketch009")
sketch10.AttachmentSupport = (doc.getObject("XY_Plane"), [""])
sketch10.MapMode = "FlatFace"
sketch10.AttachmentOffset = App.Placement(Vector(0, 0, 20), App.Rotation())
sketch10.addGeometry([
    Part.LineSegment(Vector(70, 20, 0), Vector(70, -12, 0)),
    Part.LineSegment(Vector(70, -12, 0), Vector(100, -12, 0)),
    Part.LineSegment(Vector(100, -12, 0), Vector(100, 20, 0)),
    Part.LineSegment(Vector(100, 20, 0), Vector(70, 20, 0)),
], False)
sketch10.addConstraint([
    Sketcher.Constraint("Coincident", 0, 2, 1, 1),
    Sketcher.Constraint("Coincident", 1, 2, 2, 1),
    Sketcher.Constraint("Coincident", 2, 2, 3, 1),
    Sketcher.Constraint("Coincident", 3, 2, 0, 1),
    Sketcher.Constraint("Vertical", 0),
    Sketcher.Constraint("Horizontal", 1),
    Sketcher.Constraint("Vertical", 2),
    Sketcher.Constraint("Horizontal", 3),
    Sketcher.Constraint("DistanceX", 1, 1, 1, 2, 30.0),
    Sketcher.Constraint("DistanceY", 0, 2, 0, 1, 32.0),
    Sketcher.Constraint("DistanceX", -1, 1, 0, 2, 70.0),
    Sketcher.Constraint("DistanceY", 0, 2, -1, 1, 12.0),
])
pocket2 = body.newObject("PartDesign::Pocket", "Pocket001")
pocket2.Profile = sketch10
pocket2.Length = 5
doc.recompute()

fillet5 = body.newObject("PartDesign::Fillet", "Fillet004")
fillet5.Base = (pocket2, edges_at(pocket2, [(70, 20, 17.5)]))
fillet5.Radius = 10
doc.recompute()

fillet6 = body.newObject("PartDesign::Fillet", "Fillet005")
fillet6.Base = (fillet5, edges_at(fillet5, [(70, -12, 17.5)]))
fillet6.Radius = 5

# Sketch on XY plane
sketch11 = body.newObject("Sketcher::SketchObject", "Sketch010")
sketch11.AttachmentSupport = (doc.getObject("XY_Plane"), [""])
sketch11.MapMode = "FlatFace"
sketch11.addGeometry([
    Part.Circle(Vector(-40, -35, 0), Vector(0, 0, 1), 5),
    Part.Circle(Vector(85, -30, 0), Vector(0, 0, 1), 5),
    Part.Circle(Vector(85, 30, 0), Vector(0, 0, 1), 5),
    Part.Circle(Vector(-40, 35, 0), Vector(0, 0, 1), 5),
], False)
sketch11.addConstraint([
    Sketcher.Constraint("Equal", 0, 1),
    Sketcher.Constraint("Equal", 1, 2),
    Sketcher.Constraint("Equal", 2, 3),
    Sketcher.Constraint("Symmetric", 1, 3, 2, 3, -1),
    Sketcher.Constraint("Symmetric", 0, 3, 3, 3, -1),
    Sketcher.Constraint("Diameter", 0, 10.0),
    Sketcher.Constraint("DistanceX", 0, 3, -1, 1, 40.0),
    Sketcher.Constraint("DistanceY", 0, 3, -1, 1, 35.0),
    Sketcher.Constraint("DistanceX", -1, 1, 1, 3, 85.0),
    Sketcher.Constraint("DistanceY", 1, 3, -1, 1, 30.0),
])
pocket3 = body.newObject("PartDesign::Pocket", "Pocket002")
pocket3.Profile = sketch11
pocket3.Length = 1
pocket3.Reversed = True

doc.recompute()
